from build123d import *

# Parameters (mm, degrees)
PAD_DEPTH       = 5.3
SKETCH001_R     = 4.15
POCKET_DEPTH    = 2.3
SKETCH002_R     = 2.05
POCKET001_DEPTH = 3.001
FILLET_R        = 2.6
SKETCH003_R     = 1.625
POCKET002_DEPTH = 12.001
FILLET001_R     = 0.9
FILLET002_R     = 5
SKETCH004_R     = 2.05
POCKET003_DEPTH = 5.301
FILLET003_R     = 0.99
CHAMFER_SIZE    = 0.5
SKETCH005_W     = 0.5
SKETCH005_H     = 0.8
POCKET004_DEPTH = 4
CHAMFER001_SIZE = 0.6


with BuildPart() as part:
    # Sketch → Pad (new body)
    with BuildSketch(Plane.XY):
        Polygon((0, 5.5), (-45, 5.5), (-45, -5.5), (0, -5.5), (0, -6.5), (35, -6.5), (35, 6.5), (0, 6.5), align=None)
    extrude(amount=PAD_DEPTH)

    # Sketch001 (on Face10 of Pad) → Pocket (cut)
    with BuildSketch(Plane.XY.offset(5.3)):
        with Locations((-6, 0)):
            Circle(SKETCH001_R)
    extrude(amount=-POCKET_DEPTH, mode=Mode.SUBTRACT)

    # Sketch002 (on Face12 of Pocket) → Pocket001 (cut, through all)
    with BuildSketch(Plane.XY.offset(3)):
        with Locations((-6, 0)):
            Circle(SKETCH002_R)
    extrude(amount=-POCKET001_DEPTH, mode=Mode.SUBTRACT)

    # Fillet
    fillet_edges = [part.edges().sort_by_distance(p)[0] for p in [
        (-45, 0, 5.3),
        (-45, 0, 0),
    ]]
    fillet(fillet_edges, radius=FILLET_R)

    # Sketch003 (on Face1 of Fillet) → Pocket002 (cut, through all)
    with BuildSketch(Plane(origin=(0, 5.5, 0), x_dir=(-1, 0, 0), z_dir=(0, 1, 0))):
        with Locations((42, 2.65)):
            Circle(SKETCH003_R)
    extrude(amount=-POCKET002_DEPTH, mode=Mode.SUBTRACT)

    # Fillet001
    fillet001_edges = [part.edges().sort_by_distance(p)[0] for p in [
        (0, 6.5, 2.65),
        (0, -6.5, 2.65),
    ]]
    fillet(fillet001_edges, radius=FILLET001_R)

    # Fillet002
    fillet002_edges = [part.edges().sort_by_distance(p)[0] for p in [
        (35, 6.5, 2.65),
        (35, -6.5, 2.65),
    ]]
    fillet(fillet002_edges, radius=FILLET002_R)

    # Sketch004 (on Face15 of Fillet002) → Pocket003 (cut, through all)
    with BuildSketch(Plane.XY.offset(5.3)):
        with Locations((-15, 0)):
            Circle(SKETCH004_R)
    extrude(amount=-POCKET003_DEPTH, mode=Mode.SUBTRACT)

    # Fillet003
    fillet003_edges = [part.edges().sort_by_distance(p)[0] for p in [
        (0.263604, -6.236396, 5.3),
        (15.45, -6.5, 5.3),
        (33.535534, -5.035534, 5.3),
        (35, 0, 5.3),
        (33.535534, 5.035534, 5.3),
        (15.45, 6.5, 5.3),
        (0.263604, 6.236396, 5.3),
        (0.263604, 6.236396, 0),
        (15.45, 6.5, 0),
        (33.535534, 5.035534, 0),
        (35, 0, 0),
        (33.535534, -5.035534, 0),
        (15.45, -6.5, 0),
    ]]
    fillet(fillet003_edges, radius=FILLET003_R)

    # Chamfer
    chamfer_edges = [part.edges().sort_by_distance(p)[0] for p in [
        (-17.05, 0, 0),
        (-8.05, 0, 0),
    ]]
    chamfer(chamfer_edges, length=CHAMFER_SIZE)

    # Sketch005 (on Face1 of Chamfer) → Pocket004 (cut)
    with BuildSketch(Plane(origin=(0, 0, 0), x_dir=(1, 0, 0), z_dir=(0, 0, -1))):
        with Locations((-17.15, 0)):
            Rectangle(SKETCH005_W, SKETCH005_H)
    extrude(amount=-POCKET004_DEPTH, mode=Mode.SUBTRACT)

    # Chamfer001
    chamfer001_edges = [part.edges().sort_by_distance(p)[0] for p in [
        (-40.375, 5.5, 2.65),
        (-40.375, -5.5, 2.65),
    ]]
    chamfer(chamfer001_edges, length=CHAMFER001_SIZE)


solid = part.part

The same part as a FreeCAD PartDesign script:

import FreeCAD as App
import Part
import Sketcher
Q = App.Units.Quantity


def edges_at(feature, points):
    """Names of the edges that pass closest to the given points."""
    edges = feature.Shape.Edges
    near = lambda p: min(range(len(edges)), key=lambda i: edges[i].distToShape(Part.Vertex(*p))[0])
    return sorted({f"Edge{near(p) + 1}" for p in points})

doc = App.newDocument("Part")
body = doc.addObject("PartDesign::Body", "Body")

sketch1 = body.newObject("Sketcher::SketchObject", "Sketch")
sketch1.AttachmentSupport = (doc.getObject("XY_Plane"), [""])
sketch1.MapMode = "FlatFace"
sketch1.addGeometry(Part.LineSegment(App.Vector(0, 5.5, 0), App.Vector(-45, 5.5, 0)), False)
sketch1.addGeometry(Part.LineSegment(App.Vector(-45, 5.5, 0), App.Vector(-45, -5.5, 0)), False)
sketch1.addGeometry(Part.LineSegment(App.Vector(-45, -5.5, 0), App.Vector(0, -5.5, 0)), False)
sketch1.addGeometry(Part.LineSegment(App.Vector(0, -5.5, 0), App.Vector(0, -6.5, 0)), False)
sketch1.addGeometry(Part.LineSegment(App.Vector(0, -6.5, 0), App.Vector(35, -6.5, 0)), False)
sketch1.addGeometry(Part.LineSegment(App.Vector(35, -6.5, 0), App.Vector(35, 6.5, 0)), False)
sketch1.addGeometry(Part.LineSegment(App.Vector(35, 6.5, 0), App.Vector(0, 6.5, 0)), False)
sketch1.addGeometry(Part.LineSegment(App.Vector(0, 6.5, 0), App.Vector(0, 5.5, 0)), False)
sketch1.addConstraint(Sketcher.Constraint("Coincident", 0, 2, 1, 1))
sketch1.addConstraint(Sketcher.Constraint("Coincident", 1, 2, 2, 1))
sketch1.addConstraint(Sketcher.Constraint("Coincident", 2, 2, 3, 1))
sketch1.addConstraint(Sketcher.Constraint("Coincident", 3, 2, 4, 1))
sketch1.addConstraint(Sketcher.Constraint("Coincident", 4, 2, 5, 1))
sketch1.addConstraint(Sketcher.Constraint("Coincident", 5, 2, 6, 1))
sketch1.addConstraint(Sketcher.Constraint("Coincident", 6, 2, 7, 1))
sketch1.addConstraint(Sketcher.Constraint("Coincident", 7, 2, 0, 1))
sketch1.addConstraint(Sketcher.Constraint("Horizontal", 0))
sketch1.addConstraint(Sketcher.Constraint("Vertical", 1))
sketch1.addConstraint(Sketcher.Constraint("Horizontal", 2))
sketch1.addConstraint(Sketcher.Constraint("Vertical", 3))
sketch1.addConstraint(Sketcher.Constraint("Horizontal", 4))
sketch1.addConstraint(Sketcher.Constraint("Vertical", 5))
sketch1.addConstraint(Sketcher.Constraint("Horizontal", 6))
sketch1.addConstraint(Sketcher.Constraint("Vertical", 7))
sketch1.addConstraint(Sketcher.Constraint("Symmetric", 3, 2, 6, 2, -1, 1))
sketch1.addConstraint(Sketcher.Constraint("Symmetric", 2, 2, 7, 2, -1))
sketch1.addConstraint(Sketcher.Constraint("DistanceX", 0, 2, 0, 1, Q("45 mm")))
sketch1.addConstraint(Sketcher.Constraint("DistanceX", 4, 1, 4, 2, Q("35 mm")))
sketch1.addConstraint(Sketcher.Constraint("DistanceY", 1, 2, 1, 1, Q("11 mm")))
sketch1.addConstraint(Sketcher.Constraint("DistanceY", 3, 2, 3, 1, Q("1 mm")))
pad1 = body.newObject("PartDesign::Pad", "Pad")
pad1.Profile = sketch1
pad1.Length = 5.3

sketch2 = body.newObject("Sketcher::SketchObject", "Sketch001")
sketch2.AttachmentSupport = (doc.getObject("XY_Plane"), [""])
sketch2.MapMode = "FlatFace"
sketch2.AttachmentOffset = App.Placement(App.Vector(0, 0, 5.3), App.Rotation())
sketch2.addGeometry(Part.Circle(App.Vector(-6, 0, 0), App.Vector(0, 0, 1), 4.2), False)
sketch2.addConstraint(Sketcher.Constraint("PointOnObject", 0, 3, -1))
sketch2.addConstraint(Sketcher.Constraint("Diameter", 0, Q("8.3 mm")))
sketch2.addConstraint(Sketcher.Constraint("DistanceX", 0, 3, -1, 1, Q("6 mm")))
pocket1 = body.newObject("PartDesign::Pocket", "Pocket")
pocket1.Profile = sketch2
pocket1.Length = 2.3

sketch3 = body.newObject("Sketcher::SketchObject", "Sketch002")
sketch3.AttachmentSupport = (doc.getObject("XY_Plane"), [""])
sketch3.MapMode = "FlatFace"
sketch3.AttachmentOffset = App.Placement(App.Vector(0, 0, 3), App.Rotation())
sketch3.addGeometry(Part.Circle(App.Vector(-6, 0, 0), App.Vector(0, 0, 1), 2), False)
sketch3.addConstraint(Sketcher.Constraint("PointOnObject", 0, 3, -1))
sketch3.addConstraint(Sketcher.Constraint("Diameter", 0, Q("4.1 mm")))
sketch3.addConstraint(Sketcher.Constraint("DistanceX", 0, 3, -1, 1, Q("6 mm")))
pocket2 = body.newObject("PartDesign::Pocket", "Pocket001")
pocket2.Profile = sketch3
pocket2.Type = "ThroughAll"
doc.recompute()

fillet = body.newObject("PartDesign::Fillet", "Fillet")
fillet.Base = (pocket2, edges_at(pocket2, [(-45, 0, 5.3), (-45, 0, 0)]))
fillet.Radius = 2.6

sketch4 = body.newObject("Sketcher::SketchObject", "Sketch003")
sketch4.AttachmentSupport = (doc.getObject("XZ_Plane"), [""])
sketch4.MapMode = "FlatFace"
sketch4.AttachmentOffset = App.Placement(App.Vector(0, 0, -5.5), App.Rotation())
sketch4.addGeometry(Part.Circle(App.Vector(-42, 2.6, 0), App.Vector(0, 0, 1), 1.6), False)
sketch4.addConstraint(Sketcher.Constraint("Diameter", 0, Q("3.25 mm")))
sketch4.addConstraint(Sketcher.Constraint("DistanceX", 0, 3, -1, 1, Q("42 mm")))
sketch4.addConstraint(Sketcher.Constraint("DistanceY", -1, 1, 0, 3, Q("2.65 mm")))
pocket3 = body.newObject("PartDesign::Pocket", "Pocket002")
pocket3.Profile = sketch4
pocket3.Type = "ThroughAll"
pocket3.Reversed = True
doc.recompute()

fillet2 = body.newObject("PartDesign::Fillet", "Fillet001")
fillet2.Base = (pocket3, edges_at(pocket3, [(0, 6.5, 2.65), (0, -6.5, 2.65)]))
fillet2.Radius = 0.9
doc.recompute()

fillet3 = body.newObject("PartDesign::Fillet", "Fillet002")
fillet3.Base = (fillet2, edges_at(fillet2, [(35, 6.5, 2.65), (35, -6.5, 2.65)]))
fillet3.Radius = 5

sketch5 = body.newObject("Sketcher::SketchObject", "Sketch004")
sketch5.AttachmentSupport = (doc.getObject("XY_Plane"), [""])
sketch5.MapMode = "FlatFace"
sketch5.AttachmentOffset = App.Placement(App.Vector(0, 0, 5.3), App.Rotation())
sketch5.addGeometry(Part.Circle(App.Vector(-15, 0, 0), App.Vector(0, 0, 1), 2), False)
sketch5.addConstraint(Sketcher.Constraint("PointOnObject", 0, 3, -1))
sketch5.addConstraint(Sketcher.Constraint("Diameter", 0, Q("4.1 mm")))
sketch5.addConstraint(Sketcher.Constraint("DistanceX", 0, 3, -1, 1, Q("15 mm")))
pocket4 = body.newObject("PartDesign::Pocket", "Pocket003")
pocket4.Profile = sketch5
pocket4.Type = "ThroughAll"
doc.recompute()

fillet4 = body.newObject("PartDesign::Fillet", "Fillet003")
fillet4.Base = (pocket4, edges_at(pocket4, [
    (0.264, -6.236, 5.3),
    (15.45, -6.5, 5.3),
    (33.536, -5.036, 5.3),
    (35, 0, 5.3),
    (33.536, 5.036, 5.3),
    (15.45, 6.5, 5.3),
    (0.264, 6.236, 5.3),
    (0.264, 6.236, 0),
    (15.45, 6.5, 0),
    (33.536, 5.036, 0),
    (35, 0, 0),
    (33.536, -5.036, 0),
    (15.45, -6.5, 0),
]))
fillet4.Radius = 0.99
doc.recompute()

chamfer = body.newObject("PartDesign::Chamfer", "Chamfer")
chamfer.Base = (fillet4, edges_at(fillet4, [(-17.05, 0, 0), (-8.05, 0, 0)]))
chamfer.Size = 0.5

sketch6 = body.newObject("Sketcher::SketchObject", "Sketch005")
sketch6.AttachmentSupport = (doc.getObject("XY_Plane"), [""])
sketch6.MapMode = "FlatFace"
sketch6.addGeometry(Part.LineSegment(App.Vector(-17.4, -0.4, 0), App.Vector(-17.4, 0.4, 0)), False)
sketch6.addGeometry(Part.LineSegment(App.Vector(-17.4, 0.4, 0), App.Vector(-16.9, 0.4, 0)), False)
sketch6.addGeometry(Part.LineSegment(App.Vector(-16.9, 0.4, 0), App.Vector(-16.9, -0.4, 0)), False)
sketch6.addGeometry(Part.LineSegment(App.Vector(-16.9, -0.4, 0), App.Vector(-17.4, -0.4, 0)), False)
sketch6.addConstraint(Sketcher.Constraint("Coincident", 0, 2, 1, 1))
sketch6.addConstraint(Sketcher.Constraint("Coincident", 1, 2, 2, 1))
sketch6.addConstraint(Sketcher.Constraint("Coincident", 2, 2, 3, 1))
sketch6.addConstraint(Sketcher.Constraint("Coincident", 3, 2, 0, 1))
sketch6.addConstraint(Sketcher.Constraint("Vertical", 0))
sketch6.addConstraint(Sketcher.Constraint("Horizontal", 1))
sketch6.addConstraint(Sketcher.Constraint("Vertical", 2))
sketch6.addConstraint(Sketcher.Constraint("Horizontal", 3))
sketch6.addConstraint(Sketcher.Constraint("DistanceX", 1, 1, 1, 2, Q("0.5 mm")))
sketch6.addConstraint(Sketcher.Constraint("DistanceY", 0, 1, 0, 2, Q("0.8 mm")))
sketch6.addConstraint(Sketcher.Constraint("DistanceX", 0, 2, -1, 1, Q("17.4 mm")))
sketch6.addConstraint(Sketcher.Constraint("DistanceY", -1, 1, 0, 2, Q("0.4 mm")))
pocket5 = body.newObject("PartDesign::Pocket", "Pocket004")
pocket5.Profile = sketch6
pocket5.Length = 4
pocket5.Reversed = True
doc.recompute()

chamfer2 = body.newObject("PartDesign::Chamfer", "Chamfer001")
chamfer2.Base = (pocket5, edges_at(pocket5, [(-40.375, 5.5, 2.65), (-40.375, -5.5, 2.65)]))
chamfer2.Size = 0.6

doc.recompute()
